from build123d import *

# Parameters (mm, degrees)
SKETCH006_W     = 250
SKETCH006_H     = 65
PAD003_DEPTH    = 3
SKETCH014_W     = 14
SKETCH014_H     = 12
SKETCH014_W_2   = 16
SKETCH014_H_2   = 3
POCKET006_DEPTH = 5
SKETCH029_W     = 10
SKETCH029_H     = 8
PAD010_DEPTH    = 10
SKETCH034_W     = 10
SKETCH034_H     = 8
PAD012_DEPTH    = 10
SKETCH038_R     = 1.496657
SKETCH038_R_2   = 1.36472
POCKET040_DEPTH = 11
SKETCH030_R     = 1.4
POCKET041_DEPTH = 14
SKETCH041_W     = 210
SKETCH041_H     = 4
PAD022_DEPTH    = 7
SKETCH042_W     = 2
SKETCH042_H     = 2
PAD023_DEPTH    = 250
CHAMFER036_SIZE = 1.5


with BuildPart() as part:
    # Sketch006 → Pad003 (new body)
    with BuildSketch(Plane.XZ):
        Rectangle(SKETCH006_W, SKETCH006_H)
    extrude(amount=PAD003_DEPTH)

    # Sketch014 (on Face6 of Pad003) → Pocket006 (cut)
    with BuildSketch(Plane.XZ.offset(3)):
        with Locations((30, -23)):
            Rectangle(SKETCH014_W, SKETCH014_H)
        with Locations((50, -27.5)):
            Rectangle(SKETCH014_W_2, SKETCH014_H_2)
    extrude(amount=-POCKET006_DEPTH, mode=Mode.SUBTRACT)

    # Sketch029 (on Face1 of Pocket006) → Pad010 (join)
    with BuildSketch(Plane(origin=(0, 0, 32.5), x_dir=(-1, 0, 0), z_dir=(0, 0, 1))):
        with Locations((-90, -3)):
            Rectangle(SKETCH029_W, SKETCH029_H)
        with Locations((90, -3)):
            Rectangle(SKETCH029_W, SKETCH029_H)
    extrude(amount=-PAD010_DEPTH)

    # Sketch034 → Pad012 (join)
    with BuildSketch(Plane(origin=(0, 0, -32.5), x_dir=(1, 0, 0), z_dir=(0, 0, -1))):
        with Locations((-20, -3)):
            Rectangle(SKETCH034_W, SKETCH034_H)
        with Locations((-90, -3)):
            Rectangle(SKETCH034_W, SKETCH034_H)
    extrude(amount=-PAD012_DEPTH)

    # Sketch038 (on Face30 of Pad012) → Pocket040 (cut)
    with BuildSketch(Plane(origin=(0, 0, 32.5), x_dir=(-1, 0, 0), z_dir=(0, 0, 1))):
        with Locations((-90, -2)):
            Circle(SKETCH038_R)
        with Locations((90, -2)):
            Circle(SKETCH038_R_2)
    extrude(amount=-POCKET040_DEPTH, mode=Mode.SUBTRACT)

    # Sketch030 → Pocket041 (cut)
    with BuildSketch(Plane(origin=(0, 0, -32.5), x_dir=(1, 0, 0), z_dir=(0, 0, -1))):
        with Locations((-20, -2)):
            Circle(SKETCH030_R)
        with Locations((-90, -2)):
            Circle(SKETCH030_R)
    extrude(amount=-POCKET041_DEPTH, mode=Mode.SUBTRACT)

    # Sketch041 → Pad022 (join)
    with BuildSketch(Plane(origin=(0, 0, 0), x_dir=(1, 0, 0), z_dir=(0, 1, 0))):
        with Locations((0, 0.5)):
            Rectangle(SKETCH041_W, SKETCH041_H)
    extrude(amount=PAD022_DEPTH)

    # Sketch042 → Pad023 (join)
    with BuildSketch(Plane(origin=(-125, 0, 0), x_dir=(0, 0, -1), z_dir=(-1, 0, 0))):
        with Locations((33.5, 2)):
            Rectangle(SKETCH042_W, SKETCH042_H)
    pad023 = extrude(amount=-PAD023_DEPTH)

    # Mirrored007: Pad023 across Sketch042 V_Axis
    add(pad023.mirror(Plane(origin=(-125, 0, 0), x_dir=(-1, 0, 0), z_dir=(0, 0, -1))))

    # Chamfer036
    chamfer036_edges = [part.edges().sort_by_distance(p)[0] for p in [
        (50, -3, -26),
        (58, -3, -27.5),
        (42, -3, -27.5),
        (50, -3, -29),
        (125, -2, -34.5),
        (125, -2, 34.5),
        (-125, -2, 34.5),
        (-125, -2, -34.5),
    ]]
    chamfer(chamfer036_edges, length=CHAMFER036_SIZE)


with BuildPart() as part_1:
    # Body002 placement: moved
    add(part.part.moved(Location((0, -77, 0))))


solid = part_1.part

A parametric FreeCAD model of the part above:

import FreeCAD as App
import Part
import Sketcher
from FreeCAD import Vector


def edges_at(feature, points):
    """Names of the edges that pass closest to the given points."""
    edges = feature.Shape.Edges
    near = lambda p: min(range(len(edges)), key=lambda i: edges[i].distToShape(Part.Vertex(*p))[0])
    return sorted({f"Edge{near(p) + 1}" for p in points})


def add_polygon(sketch, points):
    """Adds a closed chain of lines whose ends are joined by coincident constraints."""
    first, n = sketch.GeometryCount, len(points)
    for a, b in zip(points, points[1:] + points[:1]):
        sketch.addGeometry(Part.LineSegment(App.Vector(*a, 0), App.Vector(*b, 0)), False)
    for i in range(n):
        sketch.addConstraint(Sketcher.Constraint("Coincident", first + i, 2, first + (i + 1) % n, 1))

doc = App.newDocument("Part")
body = doc.addObject("PartDesign::Body", "Body")

sketch1 = body.newObject("Sketcher::SketchObject", "Sketch")
sketch1.AttachmentSupport = (doc.getObject("XZ_Plane"), [""])
sketch1.MapMode = "FlatFace"
add_polygon(sketch1, [(-125, 32), (-125, -32), (125, -32), (125, 32)])
sketch1.addConstraint([
    Sketcher.Constraint("Vertical", 0),
    Sketcher.Constraint("Horizontal", 1),
    Sketcher.Constraint("Vertical", 2),
    Sketcher.Constraint("Horizontal", 3),
    Sketcher.Constraint("Symmetric", 0, 2, 2, 2, -1, 1),
    Sketcher.Constraint("DistanceX", 1, 1, 1, 2, 250.0),
    Sketcher.Constraint("DistanceY", 0, 2, 0, 1, 65.0),
])
pad1 = body.newObject("PartDesign::Pad", "Pad")
pad1.Profile = sketch1
pad1.Length = 3

sketch2 = body.newObject("Sketcher::SketchObject", "Sketch001")
sketch2.AttachmentSupport = (doc.getObject("XZ_Plane"), [""])
sketch2.MapMode = "FlatFace"
sketch2.AttachmentOffset = App.Placement(Vector(0, 0, 3), App.Rotation())
add_polygon(sketch2, [(23, -17), (23, -29), (37, -29), (37, -17)])
add_polygon(sketch2, [(42, -26), (42, -29), (58, -29), (58, -26)])
sketch2.addConstraint([
    Sketcher.Constraint("Vertical", 0),
    Sketcher.Constraint("Horizontal", 1),
    Sketcher.Constraint("Vertical", 2),
    Sketcher.Constraint("Horizontal", 3),
    Sketcher.Constraint("Vertical", 4),
    Sketcher.Constraint("Horizontal", 5),
    Sketcher.Constraint("Vertical", 6),
    Sketcher.Constraint("Horizontal", 7),
    Sketcher.Constraint("Horizontal", 1, 2, 4, 2),
    Sketcher.Constraint("DistanceX", 1, 1, 1, 2, 14.0),
    Sketcher.Constraint("DistanceX", 5, 1, 5, 2, 16.0),
    Sketcher.Constraint("DistanceY", 0, 2, 0, 1, 12.0),
    Sketcher.Constraint("DistanceY", 4, 2, 4, 1, 3.0),
    Sketcher.Constraint("DistanceX", -1, 1, 0, 2, 23.0),
    Sketcher.Constraint("DistanceY", 0, 2, -1, 1, 29.0),
    Sketcher.Constraint("DistanceX", -1, 1, 4, 2, 42.0),
])
pocket1 = body.newObject("PartDesign::Pocket", "Pocket")
pocket1.Profile = sketch2
pocket1.Length = 5

sketch3 = body.newObject("Sketcher::SketchObject", "Sketch002")
sketch3.AttachmentSupport = (doc.getObject("XY_Plane"), [""])
sketch3.MapMode = "FlatFace"
sketch3.AttachmentOffset = App.Placement(Vector(0, 0, 32.5), App.Rotation())
add_polygon(sketch3, [(95, -1), (95, 7), (85, 7), (85, -1)])
add_polygon(sketch3, [(-85, -1), (-85, 7), (-95, 7), (-95, -1)])
sketch3.addConstraint([
    Sketcher.Constraint("Vertical", 0),
    Sketcher.Constraint("Horizontal", 1),
    Sketcher.Constraint("Vertical", 2),
    Sketcher.Constraint("Horizontal", 3),
    Sketcher.Constraint("Vertical", 4),
    Sketcher.Constraint("Horizontal", 5),
    Sketcher.Constraint("Vertical", 6),
    Sketcher.Constraint("Horizontal", 7),
    Sketcher.Constraint("Symmetric", 1, 2, 4, 2, -2),
    Sketcher.Constraint("Symmetric", 3, 2, 6, 2, -2),
    Sketcher.Constraint("DistanceX", 1, 2, 1, 1, 10.0),
    Sketcher.Constraint("DistanceY", 0, 1, 0, 2, 8.0),
    Sketcher.Constraint("DistanceX", -1, 1, 0, 2, 95.0),
    Sketcher.Constraint("DistanceY", -1, 1, 0, 2, 7.0),
])
pad2 = body.newObject("PartDesign::Pad", "Pad001")
pad2.Profile = sketch3
pad2.Length = 10
pad2.Reversed = True

sketch4 = body.newObject("Sketcher::SketchObject", "Sketch003")
sketch4.AttachmentSupport = (doc.getObject("XY_Plane"), [""])
sketch4.MapMode = "FlatFace"
sketch4.AttachmentOffset = App.Placement(Vector(0, 0, -32.5), App.Rotation())
add_polygon(sketch4, [(-25, -1), (-25, 7), (-15, 7), (-15, -1)])
add_polygon(sketch4, [(-95, -1), (-95, 7), (-85, 7), (-85, -1)])
sketch4.addConstraint([
    Sketcher.Constraint("Vertical", 0),
    Sketcher.Constraint("Horizontal", 1),
    Sketcher.Constraint("Vertical", 2),
    Sketcher.Constraint("Horizontal", 3),
    Sketcher.Constraint("Vertical", 4),
    Sketcher.Constraint("Horizontal", 5),
    Sketcher.Constraint("Vertical", 6),
    Sketcher.Constraint("Horizontal", 7),
    Sketcher.Constraint("Horizontal", 1, 2, 4, 2),
    Sketcher.Constraint("Horizontal", 3, 2, 6, 2),
    Sketcher.Constraint("Equal", 3, 5),
    Sketcher.Constraint("DistanceX", 1, 1, 1, 2, 10.0),
    Sketcher.Constraint("DistanceY", 0, 1, 0, 2, 8.0),
    Sketcher.Constraint("DistanceX", 0, 2, -1, 1, 25.0),
    Sketcher.Constraint("DistanceY", -1, 1, 0, 2, 7.0),
    Sketcher.Constraint("DistanceX", 4, 2, -1, 1, 95.0),
])
pad3 = body.newObject("PartDesign::Pad", "Pad002")
pad3.Profile = sketch4
pad3.Length = 10

sketch5 = body.newObject("Sketcher::SketchObject", "Sketch004")
sketch5.AttachmentSupport = (doc.getObject("XY_Plane"), [""])
sketch5.MapMode = "FlatFace"
sketch5.AttachmentOffset = App.Placement(Vector(0, 0, 32.5), App.Rotation())
sketch5.addGeometry([
    Part.Circle(Vector(90, 2, 0), Vector(0, 0, 1), 1.5),
    Part.Circle(Vector(-90, 2, 0), Vector(0, 0, 1), 1.4),
], False)
sketch5.addConstraint([
    Sketcher.Constraint("Symmetric", 0, 3, 1, 3, -2),
    Sketcher.Constraint("DistanceX", -1, 1, 0, 3, 90.0),
    Sketcher.Constraint("DistanceY", -1, 1, 0, 3, 2.0),
    Sketcher.Constraint("Diameter", 1, 2.72944),
    Sketcher.Constraint("Diameter", 0, 2.993314),
])
pocket2 = body.newObject("PartDesign::Pocket", "Pocket001")
pocket2.Profile = sketch5
pocket2.Length = 11

sketch6 = body.newObject("Sketcher::SketchObject", "Sketch005")
sketch6.AttachmentSupport = (doc.getObject("XY_Plane"), [""])
sketch6.MapMode = "FlatFace"
sketch6.AttachmentOffset = App.Placement(Vector(0, 0, -32.5), App.Rotation())
sketch6.addGeometry([
    Part.Circle(Vector(-20, 2, 0), Vector(0, 0, 1), 1.4),
    Part.Circle(Vector(-90, 2, 0), Vector(0, 0, 1), 1.4),
], False)
sketch6.addConstraint([
    Sketcher.Constraint("Equal", 0, 1),
    Sketcher.Constraint("Horizontal", 0, 3, 1, 3),
    Sketcher.Constraint("Diameter", 0, 2.8),
    Sketcher.Constraint("DistanceX", 0, 3, -1, 1, 20.0),
    Sketcher.Constraint("DistanceY", -1, 1, 0, 3, 2.0),
    Sketcher.Constraint("DistanceX", 1, 3, -1, 1, 90.0),
])
pocket3 = body.newObject("PartDesign::Pocket", "Pocket002")
pocket3.Profile = sketch6
pocket3.Length = 14
pocket3.Reversed = True

sketch7 = body.newObject("Sketcher::SketchObject", "Sketch006")
sketch7.AttachmentSupport = (doc.getObject("XZ_Plane"), [""])
sketch7.MapMode = "FlatFace"
add_polygon(sketch7, [(-105, -2.5), (-105, 1.5), (105, 1.5), (105, -2.5)])
sketch7.addConstraint([
    Sketcher.Constraint("Vertical", 0),
    Sketcher.Constraint("Horizontal", 1),
    Sketcher.Constraint("Vertical", 2),
    Sketcher.Constraint("Horizontal", 3),
    Sketcher.Constraint("DistanceX", 1, 1, 1, 2, 210.0),
    Sketcher.Constraint("DistanceY", 0, 1, 0, 2, 4.0),
    Sketcher.Constraint("DistanceX", 0, 2, -1, 1, 105.0),
    Sketcher.Constraint("DistanceY", -1, 1, 0, 2, 1.5),
])
pad4 = body.newObject("PartDesign::Pad", "Pad003")
pad4.Profile = sketch7
pad4.Length = 7
pad4.Reversed = True

sketch8 = body.newObject("Sketcher::SketchObject", "Sketch007")
sketch8.AttachmentSupport = (doc.getObject("YZ_Plane"), [""])
sketch8.MapMode = "FlatFace"
sketch8.AttachmentOffset = App.Placement(Vector(0, 0, -125), App.Rotation())
add_polygon(sketch8, [(-3, -32.5), (-1, -32.5), (-1, -34.5), (-3, -34.5)])
sketch8.addConstraint([
    Sketcher.Constraint("Horizontal", 0),
    Sketcher.Constraint("Vertical", 1),
    Sketcher.Constraint("Horizontal", 2),
    Sketcher.Constraint("Vertical", 3),
    Sketcher.Constraint("Equal", 2, 1),
    Sketcher.Constraint("DistanceX", 0, 1, 0, 2, 2.0),
    Sketcher.Constraint("DistanceX", 0, 2, -1, 1, 1.0),
    Sketcher.Constraint("DistanceY", 0, 2, -1, 1, 32.5),
])
pad5 = body.newObject("PartDesign::Pad", "Pad004")
pad5.Profile = sketch8
pad5.Length = 250
doc.recompute()

mirrored = body.newObject("PartDesign::Mirrored", "Mirrored")
mirrored.Originals = [pad5]
mirrored.MirrorPlane = (doc.getObject("XY_Plane"), [""])
body.Tip = mirrored
doc.recompute()

chamfer = body.newObject("PartDesign::Chamfer", "Chamfer")
chamfer.Base = (mirrored, edges_at(mirrored, [
    (50, -3, -26),
    (58, -3, -27.5),
    (42, -3, -27.5),
    (50, -3, -29),
    (125, -2, -34.5),
    (125, -2, 34.5),
    (-125, -2, 34.5),
    (-125, -2, -34.5),
]))
chamfer.Size = 1.5
body2 = doc.addObject("PartDesign::Body", "Body001")
doc.recompute()

body.Placement = App.Placement(Vector(0, -77, 0), App.Rotation(Vector(0, 0, 1), 0))
boolean = body2.newObject("PartDesign::Boolean", "Boolean")
boolean.Type = "Fuse"
boolean.addObjects([body])

doc.recompute()
